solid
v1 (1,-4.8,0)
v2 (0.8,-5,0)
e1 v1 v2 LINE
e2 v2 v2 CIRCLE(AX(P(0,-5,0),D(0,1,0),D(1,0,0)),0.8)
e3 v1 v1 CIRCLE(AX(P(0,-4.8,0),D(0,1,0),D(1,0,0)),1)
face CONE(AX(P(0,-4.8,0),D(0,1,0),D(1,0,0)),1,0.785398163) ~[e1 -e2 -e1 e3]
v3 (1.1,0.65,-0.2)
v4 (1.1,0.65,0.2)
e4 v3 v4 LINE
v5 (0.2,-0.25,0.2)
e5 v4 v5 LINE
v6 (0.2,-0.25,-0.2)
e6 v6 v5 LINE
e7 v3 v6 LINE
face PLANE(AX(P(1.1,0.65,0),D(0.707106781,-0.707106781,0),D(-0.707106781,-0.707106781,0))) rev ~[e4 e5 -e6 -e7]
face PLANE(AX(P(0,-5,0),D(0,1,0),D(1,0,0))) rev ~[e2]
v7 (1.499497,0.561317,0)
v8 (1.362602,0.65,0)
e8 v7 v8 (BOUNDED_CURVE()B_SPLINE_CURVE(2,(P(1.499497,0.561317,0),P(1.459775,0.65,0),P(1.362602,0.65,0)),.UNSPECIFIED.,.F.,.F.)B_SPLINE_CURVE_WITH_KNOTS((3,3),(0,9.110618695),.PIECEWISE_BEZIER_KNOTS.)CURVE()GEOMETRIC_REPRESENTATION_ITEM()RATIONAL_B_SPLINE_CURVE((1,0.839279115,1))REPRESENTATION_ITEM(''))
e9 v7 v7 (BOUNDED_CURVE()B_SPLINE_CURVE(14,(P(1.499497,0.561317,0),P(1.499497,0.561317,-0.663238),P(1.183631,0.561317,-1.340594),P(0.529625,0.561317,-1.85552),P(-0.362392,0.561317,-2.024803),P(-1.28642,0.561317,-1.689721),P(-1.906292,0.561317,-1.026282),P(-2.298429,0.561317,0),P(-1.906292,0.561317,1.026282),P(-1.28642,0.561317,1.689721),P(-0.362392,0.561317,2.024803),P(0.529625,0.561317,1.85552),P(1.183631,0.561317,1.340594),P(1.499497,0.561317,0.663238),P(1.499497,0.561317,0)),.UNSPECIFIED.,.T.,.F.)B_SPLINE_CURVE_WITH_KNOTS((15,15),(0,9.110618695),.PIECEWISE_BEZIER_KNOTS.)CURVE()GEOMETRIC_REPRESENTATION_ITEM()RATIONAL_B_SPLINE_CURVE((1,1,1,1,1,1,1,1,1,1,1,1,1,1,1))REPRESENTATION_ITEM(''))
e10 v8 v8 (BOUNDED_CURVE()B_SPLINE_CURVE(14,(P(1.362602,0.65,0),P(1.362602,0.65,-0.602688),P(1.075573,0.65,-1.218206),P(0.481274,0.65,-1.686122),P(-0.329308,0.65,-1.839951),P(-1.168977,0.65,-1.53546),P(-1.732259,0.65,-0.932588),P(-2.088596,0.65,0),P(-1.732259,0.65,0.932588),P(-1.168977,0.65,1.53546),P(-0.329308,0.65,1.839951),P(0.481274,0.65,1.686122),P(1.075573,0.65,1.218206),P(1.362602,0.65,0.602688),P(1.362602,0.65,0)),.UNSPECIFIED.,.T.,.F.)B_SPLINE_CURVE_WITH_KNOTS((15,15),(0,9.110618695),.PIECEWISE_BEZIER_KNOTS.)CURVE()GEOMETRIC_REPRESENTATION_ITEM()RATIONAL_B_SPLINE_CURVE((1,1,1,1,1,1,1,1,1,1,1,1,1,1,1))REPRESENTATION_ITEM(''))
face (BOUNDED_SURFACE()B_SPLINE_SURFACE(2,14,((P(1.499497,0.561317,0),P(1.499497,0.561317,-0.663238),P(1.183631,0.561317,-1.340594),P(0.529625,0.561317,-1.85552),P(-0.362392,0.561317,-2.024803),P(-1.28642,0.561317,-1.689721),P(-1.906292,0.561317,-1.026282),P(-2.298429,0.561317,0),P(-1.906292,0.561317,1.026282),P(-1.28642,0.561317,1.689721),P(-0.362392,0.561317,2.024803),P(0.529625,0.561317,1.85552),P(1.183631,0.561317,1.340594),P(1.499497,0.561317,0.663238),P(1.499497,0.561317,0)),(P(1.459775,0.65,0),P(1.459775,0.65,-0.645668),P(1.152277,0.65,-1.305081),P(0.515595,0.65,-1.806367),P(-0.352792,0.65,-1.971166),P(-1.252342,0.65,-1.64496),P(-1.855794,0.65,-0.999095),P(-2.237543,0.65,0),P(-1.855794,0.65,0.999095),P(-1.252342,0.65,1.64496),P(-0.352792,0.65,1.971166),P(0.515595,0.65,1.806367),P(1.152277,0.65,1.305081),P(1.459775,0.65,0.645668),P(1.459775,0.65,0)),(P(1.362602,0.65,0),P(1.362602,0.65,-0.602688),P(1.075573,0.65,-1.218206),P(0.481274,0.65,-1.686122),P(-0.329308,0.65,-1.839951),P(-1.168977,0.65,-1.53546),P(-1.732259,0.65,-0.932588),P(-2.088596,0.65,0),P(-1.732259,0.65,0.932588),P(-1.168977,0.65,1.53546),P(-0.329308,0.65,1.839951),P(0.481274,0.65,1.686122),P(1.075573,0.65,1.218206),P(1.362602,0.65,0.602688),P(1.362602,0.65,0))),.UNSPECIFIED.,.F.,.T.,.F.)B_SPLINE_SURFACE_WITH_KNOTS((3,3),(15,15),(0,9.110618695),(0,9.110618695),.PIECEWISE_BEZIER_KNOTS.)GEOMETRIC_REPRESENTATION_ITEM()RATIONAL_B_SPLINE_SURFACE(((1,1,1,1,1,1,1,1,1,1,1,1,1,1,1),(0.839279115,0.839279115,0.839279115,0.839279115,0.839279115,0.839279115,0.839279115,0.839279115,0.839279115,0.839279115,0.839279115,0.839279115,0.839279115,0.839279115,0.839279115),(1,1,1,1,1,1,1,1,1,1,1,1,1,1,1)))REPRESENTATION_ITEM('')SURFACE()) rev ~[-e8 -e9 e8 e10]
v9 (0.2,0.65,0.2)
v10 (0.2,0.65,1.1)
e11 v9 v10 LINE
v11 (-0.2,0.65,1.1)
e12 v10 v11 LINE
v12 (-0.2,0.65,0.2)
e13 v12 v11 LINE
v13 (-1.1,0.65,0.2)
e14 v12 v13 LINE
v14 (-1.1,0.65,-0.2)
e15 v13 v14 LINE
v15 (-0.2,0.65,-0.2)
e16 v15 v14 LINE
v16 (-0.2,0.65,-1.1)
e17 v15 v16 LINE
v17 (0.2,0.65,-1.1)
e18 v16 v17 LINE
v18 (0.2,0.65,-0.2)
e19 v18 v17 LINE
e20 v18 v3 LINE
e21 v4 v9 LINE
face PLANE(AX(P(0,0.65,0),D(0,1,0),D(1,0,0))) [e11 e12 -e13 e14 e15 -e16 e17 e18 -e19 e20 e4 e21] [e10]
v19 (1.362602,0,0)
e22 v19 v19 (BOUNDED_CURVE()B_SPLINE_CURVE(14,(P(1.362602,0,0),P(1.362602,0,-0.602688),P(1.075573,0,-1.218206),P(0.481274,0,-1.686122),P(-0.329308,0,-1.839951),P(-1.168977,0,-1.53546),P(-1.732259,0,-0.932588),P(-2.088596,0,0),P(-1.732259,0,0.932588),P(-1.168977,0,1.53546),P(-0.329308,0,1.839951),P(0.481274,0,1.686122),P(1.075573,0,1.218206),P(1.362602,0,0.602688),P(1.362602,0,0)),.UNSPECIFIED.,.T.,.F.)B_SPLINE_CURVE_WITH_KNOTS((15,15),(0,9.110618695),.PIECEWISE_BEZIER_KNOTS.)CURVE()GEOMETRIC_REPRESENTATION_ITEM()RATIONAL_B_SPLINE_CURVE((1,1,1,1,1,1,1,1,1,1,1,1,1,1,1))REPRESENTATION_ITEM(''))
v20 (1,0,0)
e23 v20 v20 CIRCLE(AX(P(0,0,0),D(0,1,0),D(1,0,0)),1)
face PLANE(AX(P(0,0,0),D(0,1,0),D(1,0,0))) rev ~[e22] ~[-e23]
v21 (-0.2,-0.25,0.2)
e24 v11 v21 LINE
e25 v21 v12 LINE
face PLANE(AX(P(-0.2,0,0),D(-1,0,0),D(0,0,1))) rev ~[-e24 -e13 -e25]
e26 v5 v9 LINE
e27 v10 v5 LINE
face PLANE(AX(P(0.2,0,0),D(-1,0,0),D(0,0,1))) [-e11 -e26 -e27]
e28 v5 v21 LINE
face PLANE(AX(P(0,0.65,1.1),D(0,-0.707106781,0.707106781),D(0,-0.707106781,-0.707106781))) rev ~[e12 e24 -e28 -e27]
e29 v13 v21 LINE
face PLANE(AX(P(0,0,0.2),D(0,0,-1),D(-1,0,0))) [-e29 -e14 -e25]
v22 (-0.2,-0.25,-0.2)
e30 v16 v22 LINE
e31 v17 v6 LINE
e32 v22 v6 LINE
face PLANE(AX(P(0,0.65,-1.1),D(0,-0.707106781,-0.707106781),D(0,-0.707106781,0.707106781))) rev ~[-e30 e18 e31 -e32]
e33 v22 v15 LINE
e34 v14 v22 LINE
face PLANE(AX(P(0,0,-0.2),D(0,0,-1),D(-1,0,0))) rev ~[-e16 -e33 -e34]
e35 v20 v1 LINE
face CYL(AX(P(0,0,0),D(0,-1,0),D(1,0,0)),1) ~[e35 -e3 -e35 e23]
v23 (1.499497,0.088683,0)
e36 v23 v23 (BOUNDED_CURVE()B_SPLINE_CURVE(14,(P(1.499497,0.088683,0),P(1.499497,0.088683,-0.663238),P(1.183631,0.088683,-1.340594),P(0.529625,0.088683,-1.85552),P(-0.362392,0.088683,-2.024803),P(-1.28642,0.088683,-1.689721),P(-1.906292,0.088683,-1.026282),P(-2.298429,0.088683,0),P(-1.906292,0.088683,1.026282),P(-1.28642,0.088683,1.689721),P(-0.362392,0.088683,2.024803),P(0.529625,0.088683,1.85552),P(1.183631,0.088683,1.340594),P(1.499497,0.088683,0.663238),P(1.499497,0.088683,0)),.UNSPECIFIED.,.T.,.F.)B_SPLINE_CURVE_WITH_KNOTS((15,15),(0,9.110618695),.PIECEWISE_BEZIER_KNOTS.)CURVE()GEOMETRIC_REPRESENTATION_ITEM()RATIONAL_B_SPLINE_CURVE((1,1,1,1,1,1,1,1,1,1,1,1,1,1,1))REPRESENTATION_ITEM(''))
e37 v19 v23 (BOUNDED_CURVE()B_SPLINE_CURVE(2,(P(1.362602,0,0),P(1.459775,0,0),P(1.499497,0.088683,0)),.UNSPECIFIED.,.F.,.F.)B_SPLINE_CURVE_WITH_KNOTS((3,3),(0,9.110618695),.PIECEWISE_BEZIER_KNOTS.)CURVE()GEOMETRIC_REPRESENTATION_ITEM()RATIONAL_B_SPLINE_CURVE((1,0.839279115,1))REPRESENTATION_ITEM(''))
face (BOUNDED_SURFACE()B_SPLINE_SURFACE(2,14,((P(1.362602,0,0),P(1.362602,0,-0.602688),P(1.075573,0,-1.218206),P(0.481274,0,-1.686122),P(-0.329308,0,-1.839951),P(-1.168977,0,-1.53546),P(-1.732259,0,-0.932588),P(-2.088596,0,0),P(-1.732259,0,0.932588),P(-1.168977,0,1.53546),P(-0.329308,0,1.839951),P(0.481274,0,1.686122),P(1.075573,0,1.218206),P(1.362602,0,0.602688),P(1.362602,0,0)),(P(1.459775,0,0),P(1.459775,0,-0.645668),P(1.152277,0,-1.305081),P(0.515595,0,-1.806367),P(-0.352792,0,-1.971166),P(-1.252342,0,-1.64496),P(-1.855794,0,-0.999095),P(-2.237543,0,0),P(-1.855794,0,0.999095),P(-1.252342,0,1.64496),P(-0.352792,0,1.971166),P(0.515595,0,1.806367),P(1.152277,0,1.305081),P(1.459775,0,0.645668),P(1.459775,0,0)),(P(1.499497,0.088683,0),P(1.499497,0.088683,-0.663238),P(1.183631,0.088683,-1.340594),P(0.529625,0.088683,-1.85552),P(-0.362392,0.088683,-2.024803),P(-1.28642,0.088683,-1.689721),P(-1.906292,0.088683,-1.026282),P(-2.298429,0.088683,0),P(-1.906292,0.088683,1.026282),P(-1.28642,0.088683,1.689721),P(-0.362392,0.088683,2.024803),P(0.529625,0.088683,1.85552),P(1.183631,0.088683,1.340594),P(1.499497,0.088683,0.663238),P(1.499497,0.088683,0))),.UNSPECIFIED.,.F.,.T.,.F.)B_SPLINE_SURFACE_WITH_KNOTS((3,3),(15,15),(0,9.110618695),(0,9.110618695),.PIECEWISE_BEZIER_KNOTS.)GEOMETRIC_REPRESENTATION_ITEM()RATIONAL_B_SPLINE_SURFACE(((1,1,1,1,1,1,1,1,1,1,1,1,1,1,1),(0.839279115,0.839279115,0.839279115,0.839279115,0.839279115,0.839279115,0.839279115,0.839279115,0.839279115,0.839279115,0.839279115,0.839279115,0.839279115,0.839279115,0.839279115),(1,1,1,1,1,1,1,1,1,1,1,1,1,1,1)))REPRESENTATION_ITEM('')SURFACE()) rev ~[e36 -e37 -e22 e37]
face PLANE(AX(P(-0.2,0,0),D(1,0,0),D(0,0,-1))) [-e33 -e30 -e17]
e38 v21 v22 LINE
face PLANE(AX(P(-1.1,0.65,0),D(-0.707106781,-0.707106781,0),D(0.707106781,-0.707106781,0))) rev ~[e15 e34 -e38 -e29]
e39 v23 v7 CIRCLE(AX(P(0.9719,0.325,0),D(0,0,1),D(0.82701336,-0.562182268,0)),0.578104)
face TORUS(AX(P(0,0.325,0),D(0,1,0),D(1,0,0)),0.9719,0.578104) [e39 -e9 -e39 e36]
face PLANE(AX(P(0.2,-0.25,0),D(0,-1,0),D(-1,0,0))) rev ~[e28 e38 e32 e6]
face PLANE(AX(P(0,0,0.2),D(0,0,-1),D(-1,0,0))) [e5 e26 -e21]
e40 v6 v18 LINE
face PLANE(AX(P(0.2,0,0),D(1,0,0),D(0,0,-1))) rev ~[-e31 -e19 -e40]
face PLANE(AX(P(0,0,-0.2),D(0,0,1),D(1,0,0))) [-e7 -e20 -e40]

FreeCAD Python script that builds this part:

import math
import FreeCAD as App
import Part
import Sketcher
from FreeCAD import Vector
Q = App.Units.Quantity


def edges_at(feature, points):
    """Names of the edges that pass closest to the given points."""
    edges = feature.Shape.Edges
    near = lambda p: min(range(len(edges)), key=lambda i: edges[i].distToShape(Part.Vertex(*p))[0])
    return sorted({f"Edge{near(p) + 1}" for p in points})

doc = App.newDocument("Part")
body = doc.addObject("PartDesign::Body", "Body")

sketch1 = body.newObject("Sketcher::SketchObject", "Sketch")
sketch1.AttachmentSupport = (doc.getObject("XY_Plane"), [""])
sketch1.MapMode = "FlatFace"
sketch1.addGeometry([
    Part.LineSegment(Vector(1, 0, 0), Vector(1.45, 0, 0)),
    Part.ArcOfCircle(Part.Circle(Vector(0.9719, 0.325, 0), Vector(0, 0, 1), 0.578104), math.radians(-34.206851), math.radians(34.206851)),
    Part.LineSegment(Vector(1.45, 0.65, 0), Vector(0, 0.65, 0)),
    Part.LineSegment(Vector(0, 0.65, 0), Vector(0, -5, 0)),
    Part.LineSegment(Vector(0, -5, 0), Vector(1, -5, 0)),
    Part.LineSegment(Vector(1, -5, 0), Vector(1, 0, 0)),
], False)
sketch1.addConstraint([
    Sketcher.Constraint("Coincident", 0, 2, 1, 1),
    Sketcher.Constraint("Coincident", 1, 2, 2, 1),
    Sketcher.Constraint("Coincident", 2, 2, 3, 1),
    Sketcher.Constraint("Coincident", 3, 2, 4, 1),
    Sketcher.Constraint("Coincident", 4, 2, 5, 1),
    Sketcher.Constraint("Coincident", 5, 2, 0, 1),
    Sketcher.Constraint("Horizontal", 0),
    Sketcher.Constraint("Horizontal", 2),
    Sketcher.Constraint("Vertical", 3),
    Sketcher.Constraint("Horizontal", 4),
    Sketcher.Constraint("Vertical", 5),
    Sketcher.Constraint("PointOnObject", 0, 2, -1),
    Sketcher.Constraint("PointOnObject", 2, 2, -2),
    Sketcher.Constraint("Vertical", 0, 2, 1, 2),
    Sketcher.Constraint("DistanceY", 5, 1, 5, 2, 5.0),
    Sketcher.Constraint("DistanceX", 4, 1, 4, 2, 1.0),
    Sketcher.Constraint("DistanceY", -1, 1, 1, 2, 0.65),
    Sketcher.Constraint("Radius", 1, 0.578),
    Sketcher.Constraint("DistanceX", 0, 1, 0, 2, 0.45),
])
revolution = body.newObject("PartDesign::Revolution", "Revolution")
revolution.Profile = sketch1
revolution.ReferenceAxis = (sketch1, ["V_Axis"])
revolution.Angle = 360

sketch2 = body.newObject("Sketcher::SketchObject", "Sketch001")
sketch2.AttachmentSupport = (doc.getObject("XY_Plane"), [""])
sketch2.MapMode = "FlatFace"
sketch2.addGeometry([
    Part.LineSegment(Vector(0.2, -0.25, 0), Vector(1.1, 0.65, 0)),
    Part.LineSegment(Vector(1.1, 0.65, 0), Vector(0, 0.65, 0)),
    Part.LineSegment(Vector(0, 0.65, 0), Vector(0, -0.25, 0)),
    Part.LineSegment(Vector(0, -0.25, 0), Vector(0.2, -0.25, 0)),
], False)
sketch2.addConstraint([
    Sketcher.Constraint("Coincident", 0, 2, 1, 1),
    Sketcher.Constraint("Coincident", 1, 2, 2, 1),
    Sketcher.Constraint("Coincident", 2, 2, 3, 1),
    Sketcher.Constraint("Coincident", 3, 2, 0, 1),
    Sketcher.Constraint("Horizontal", 1),
    Sketcher.Constraint("Vertical", 2),
    Sketcher.Constraint("Horizontal", 3),
    Sketcher.Constraint("PointOnObject", 1, 2, -2),
    Sketcher.Constraint("Angle", 0, Q("45 deg")),
    Sketcher.Constraint("DistanceX", 3, 1, 3, 2, 0.2),
    Sketcher.Constraint("DistanceX", 1, 2, 1, 1, 1.1),
    Sketcher.Constraint("DistanceY", -1, 1, 0, 2, 0.65),
])
pocket1 = body.newObject("PartDesign::Pocket", "Pocket")
pocket1.Profile = sketch2
pocket1.Length = 0.4
pocket1.Midplane = True
doc.recompute()

polarpattern = body.newObject("PartDesign::PolarPattern", "PolarPattern")
polarpattern.Originals = [pocket1]
polarpattern.Axis = (doc.getObject("Y_Axis"), [""])
polarpattern.Angle = 360
polarpattern.Occurrences = 4
body.Tip = polarpattern
doc.recompute()

chamfer = body.newObject("PartDesign::Chamfer", "Chamfer")
chamfer.Base = (polarpattern, edges_at(polarpattern, [(-1, -5, 0)]))
chamfer.Size = 0.2
doc.recompute()

fillet = body.newObject("PartDesign::Fillet", "Fillet")
fillet.Base = (chamfer, edges_at(chamfer, [(-1.45, 0.65, 0), (-1.45, 0, 0)]))
fillet.Radius = 0.15

doc.recompute()
